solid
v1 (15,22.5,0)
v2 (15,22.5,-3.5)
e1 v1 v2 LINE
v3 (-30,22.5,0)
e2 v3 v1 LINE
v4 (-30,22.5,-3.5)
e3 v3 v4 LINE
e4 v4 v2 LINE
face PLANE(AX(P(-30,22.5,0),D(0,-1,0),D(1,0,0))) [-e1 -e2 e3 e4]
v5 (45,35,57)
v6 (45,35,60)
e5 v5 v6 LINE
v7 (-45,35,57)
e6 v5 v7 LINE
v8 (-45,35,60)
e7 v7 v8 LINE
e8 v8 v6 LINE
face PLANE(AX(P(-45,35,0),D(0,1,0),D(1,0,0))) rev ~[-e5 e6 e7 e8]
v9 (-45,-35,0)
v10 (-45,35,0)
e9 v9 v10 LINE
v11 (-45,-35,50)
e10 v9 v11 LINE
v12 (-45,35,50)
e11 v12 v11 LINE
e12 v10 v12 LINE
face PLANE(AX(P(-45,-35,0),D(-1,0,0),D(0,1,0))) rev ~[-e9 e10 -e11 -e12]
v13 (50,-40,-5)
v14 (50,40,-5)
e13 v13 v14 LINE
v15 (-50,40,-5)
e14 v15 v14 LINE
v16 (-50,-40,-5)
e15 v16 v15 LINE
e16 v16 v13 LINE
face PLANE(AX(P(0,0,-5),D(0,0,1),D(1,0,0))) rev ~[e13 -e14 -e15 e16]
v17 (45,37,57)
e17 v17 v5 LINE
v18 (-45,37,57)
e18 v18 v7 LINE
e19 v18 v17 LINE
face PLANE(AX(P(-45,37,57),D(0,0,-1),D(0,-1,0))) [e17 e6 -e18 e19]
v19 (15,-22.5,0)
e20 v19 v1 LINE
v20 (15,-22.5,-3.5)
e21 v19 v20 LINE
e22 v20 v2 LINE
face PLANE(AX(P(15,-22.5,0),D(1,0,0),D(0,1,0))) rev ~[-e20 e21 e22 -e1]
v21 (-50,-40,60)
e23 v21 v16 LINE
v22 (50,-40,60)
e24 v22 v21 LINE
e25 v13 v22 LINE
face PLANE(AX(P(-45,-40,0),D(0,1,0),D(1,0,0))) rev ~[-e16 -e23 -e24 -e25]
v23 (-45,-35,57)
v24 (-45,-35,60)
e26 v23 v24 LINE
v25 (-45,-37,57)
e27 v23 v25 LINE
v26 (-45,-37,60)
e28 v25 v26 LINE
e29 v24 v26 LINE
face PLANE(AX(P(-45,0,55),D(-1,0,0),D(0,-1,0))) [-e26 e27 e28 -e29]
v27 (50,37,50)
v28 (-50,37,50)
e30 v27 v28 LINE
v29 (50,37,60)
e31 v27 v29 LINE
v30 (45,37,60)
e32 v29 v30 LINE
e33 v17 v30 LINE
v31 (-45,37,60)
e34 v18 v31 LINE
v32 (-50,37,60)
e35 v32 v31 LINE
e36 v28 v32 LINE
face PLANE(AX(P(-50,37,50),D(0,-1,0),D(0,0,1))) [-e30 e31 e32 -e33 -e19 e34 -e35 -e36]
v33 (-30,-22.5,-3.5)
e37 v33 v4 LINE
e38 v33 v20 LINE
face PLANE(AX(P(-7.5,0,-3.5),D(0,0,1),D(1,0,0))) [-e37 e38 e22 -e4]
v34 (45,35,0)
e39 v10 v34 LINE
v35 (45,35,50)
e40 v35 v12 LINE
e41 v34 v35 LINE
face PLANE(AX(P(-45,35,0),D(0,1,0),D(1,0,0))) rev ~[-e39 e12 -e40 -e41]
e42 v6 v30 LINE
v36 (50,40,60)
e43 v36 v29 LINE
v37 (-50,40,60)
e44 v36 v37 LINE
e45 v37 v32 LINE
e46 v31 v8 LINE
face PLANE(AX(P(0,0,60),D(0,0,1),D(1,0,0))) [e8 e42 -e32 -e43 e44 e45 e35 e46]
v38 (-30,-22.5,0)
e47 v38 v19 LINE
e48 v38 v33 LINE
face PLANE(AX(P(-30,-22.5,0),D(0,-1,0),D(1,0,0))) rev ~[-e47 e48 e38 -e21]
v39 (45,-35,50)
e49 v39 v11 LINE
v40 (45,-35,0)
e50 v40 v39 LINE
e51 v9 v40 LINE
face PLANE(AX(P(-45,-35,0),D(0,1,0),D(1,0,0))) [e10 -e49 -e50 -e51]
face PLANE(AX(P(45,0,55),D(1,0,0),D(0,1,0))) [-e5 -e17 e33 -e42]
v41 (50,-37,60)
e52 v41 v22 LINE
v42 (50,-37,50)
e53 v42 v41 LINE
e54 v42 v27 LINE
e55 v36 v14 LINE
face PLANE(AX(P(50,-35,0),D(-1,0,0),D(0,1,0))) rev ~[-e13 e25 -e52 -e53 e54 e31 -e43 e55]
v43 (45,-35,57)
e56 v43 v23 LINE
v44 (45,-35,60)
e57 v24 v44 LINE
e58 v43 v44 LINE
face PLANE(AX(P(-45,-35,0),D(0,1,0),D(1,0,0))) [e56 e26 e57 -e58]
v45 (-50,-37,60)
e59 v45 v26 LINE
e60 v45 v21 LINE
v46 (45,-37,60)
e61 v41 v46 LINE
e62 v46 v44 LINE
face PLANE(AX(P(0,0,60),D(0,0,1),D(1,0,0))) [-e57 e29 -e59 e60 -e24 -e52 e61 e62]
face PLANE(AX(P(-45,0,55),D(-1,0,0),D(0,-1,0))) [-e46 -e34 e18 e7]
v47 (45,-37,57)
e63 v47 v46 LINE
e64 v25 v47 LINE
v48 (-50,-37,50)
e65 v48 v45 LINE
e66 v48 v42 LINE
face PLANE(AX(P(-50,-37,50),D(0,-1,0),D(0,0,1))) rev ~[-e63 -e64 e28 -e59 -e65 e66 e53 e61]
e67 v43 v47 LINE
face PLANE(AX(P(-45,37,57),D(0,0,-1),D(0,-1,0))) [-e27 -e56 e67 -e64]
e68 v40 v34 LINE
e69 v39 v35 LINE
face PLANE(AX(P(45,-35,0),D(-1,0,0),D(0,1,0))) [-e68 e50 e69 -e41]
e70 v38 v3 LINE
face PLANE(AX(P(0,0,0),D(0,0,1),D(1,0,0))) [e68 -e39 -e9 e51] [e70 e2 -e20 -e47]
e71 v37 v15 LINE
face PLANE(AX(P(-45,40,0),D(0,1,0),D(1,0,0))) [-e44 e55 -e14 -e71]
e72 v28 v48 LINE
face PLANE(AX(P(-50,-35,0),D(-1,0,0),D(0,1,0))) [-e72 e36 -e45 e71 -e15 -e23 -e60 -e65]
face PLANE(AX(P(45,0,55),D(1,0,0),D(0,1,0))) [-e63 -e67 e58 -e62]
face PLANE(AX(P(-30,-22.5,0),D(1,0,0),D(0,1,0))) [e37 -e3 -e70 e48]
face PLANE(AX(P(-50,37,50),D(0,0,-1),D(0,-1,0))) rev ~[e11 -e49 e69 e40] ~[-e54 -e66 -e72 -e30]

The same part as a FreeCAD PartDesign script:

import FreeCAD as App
import Part
import Sketcher

V = App.Vector


def faces_at(feature, points):
    """Names of the faces that lie closest to the given points."""
    faces = feature.Shape.Faces
    near = lambda p: min(range(len(faces)), key=lambda i: faces[i].distToShape(Part.Vertex(*p))[0])
    return sorted({f"Face{near(p) + 1}" for p in points})


def add_polygon(sketch, points):
    """Adds a closed chain of lines whose ends are joined by coincident constraints."""
    first, n = sketch.GeometryCount, len(points)
    for a, b in zip(points, points[1:] + points[:1]):
        sketch.addGeometry(Part.LineSegment(App.Vector(*a, 0), App.Vector(*b, 0)), False)
    for i in range(n):
        sketch.addConstraint(Sketcher.Constraint("Coincident", first + i, 2, first + (i + 1) % n, 1))

doc = App.newDocument("Part")
params = doc.addObject("Spreadsheet::Sheet", "Params")
for row, (alias, value) in enumerate([
    ("sketch1_width", "90 mm"),
    ("sketch1_height", "70 mm"),
    ("pad1_length", "60 mm"),
    ("thickness_wall", "5 mm"),
    ("sketch2_width", "45 mm"),
    ("pocket1_length", "3.5 mm"),
    ("sketch3_width", "45 mm"),
    ("pocket2_length", "3.5 mm"),
    ("sketch4_width", "74 mm"),
    ("sketch4_height", "10 mm"),
    ("pocket3_length", "5 mm"),
    ("sketch5_width", "74 mm"),
    ("sketch5_height", "10 mm"),
    ("pocket4_length", "5 mm"),
    ("sketch6_width", "74 mm"),
    ("sketch6_height", "7 mm"),
    ("pocket5_length", "90 mm"),
], start=1):
    params.set(f"A{row}", alias)
    params.set(f"B{row}", "=" + value)
    params.setAlias(f"B{row}", alias)

body = doc.addObject("PartDesign::Body", "Body")

sketch1 = doc.addObject("Sketcher::SketchObject", "Sketch")
body.addObject(sketch1)
sketch1.AttachmentSupport = (doc.XY_Plane, [""])
sketch1.MapMode = "FlatFace"
add_polygon(sketch1, [(-45, 35), (-45, -35), (45, -35), (45, 35)])
sketch1.addConstraint([
    Sketcher.Constraint("Vertical", 0),
    Sketcher.Constraint("Horizontal", 1),
    Sketcher.Constraint("Vertical", 2),
    Sketcher.Constraint("Horizontal", 3),
    Sketcher.Constraint("Symmetric", 0, 2, 2, 2, -1, 1),
    Sketcher.Constraint("DistanceX", 1, 1, 1, 2, 90.0),
    Sketcher.Constraint("DistanceY", 0, 2, 0, 1, 70.0),
])
sketch1.setExpression("Constraints[9]", "Params.sketch1_width")
sketch1.setExpression("Constraints[10]", "Params.sketch1_height")
pad1 = doc.addObject("PartDesign::Pad", "Pad")
body.addObject(pad1)
pad1.Profile = sketch1
pad1.setExpression("Length", "Params.pad1_length")
doc.recompute()

thickness = doc.addObject("PartDesign::Thickness", "Thickness")
body.addObject(thickness)
thickness.Base = (pad1, faces_at(pad1, [(0, 0, 60)]))
thickness.setExpression("Value", "Params.thickness_wall")
thickness.Reversed = False
thickness.Join = "Intersection"

sketch2 = doc.addObject("Sketcher::SketchObject", "Sketch001")
body.addObject(sketch2)
sketch2.AttachmentSupport = (doc.XY_Plane, [""])
sketch2.MapMode = "FlatFace"
add_polygon(sketch2, [(-30, 22), (-30, -22), (15, -22), (15, 22)])
sketch2.addConstraint([
    Sketcher.Constraint("Vertical", 0),
    Sketcher.Constraint("Horizontal", 1),
    Sketcher.Constraint("Vertical", 2),
    Sketcher.Constraint("Horizontal", 3),
    Sketcher.Constraint("Equal", 3, 0),
    Sketcher.Constraint("DistanceX", 1, 1, 1, 2, 45.0),
    Sketcher.Constraint("DistanceX", 0, 2, -1, 1, 30.0),
    Sketcher.Constraint("DistanceY", 0, 2, -1, 1, 22.5),
])
sketch2.setExpression("Constraints[9]", "Params.sketch2_width")
pocket1 = doc.addObject("PartDesign::Pocket", "Pocket")
body.addObject(pocket1)
pocket1.Profile = sketch2
pocket1.setExpression("Length", "Params.pocket1_length")

sketch3 = doc.addObject("Sketcher::SketchObject", "Sketch002")
body.addObject(sketch3)
sketch3.AttachmentSupport = (doc.XY_Plane, [""])
sketch3.MapMode = "FlatFace"
add_polygon(sketch3, [(-30, 22), (-30, -22), (15, -22), (15, 22)])
sketch3.addConstraint([
    Sketcher.Constraint("Vertical", 0),
    Sketcher.Constraint("Horizontal", 1),
    Sketcher.Constraint("Vertical", 2),
    Sketcher.Constraint("Horizontal", 3),
    Sketcher.Constraint("Equal", 3, 0),
    Sketcher.Constraint("DistanceX", 1, 1, 1, 2, 45.0),
    Sketcher.Constraint("DistanceX", 0, 2, -1, 1, 30.0),
    Sketcher.Constraint("DistanceY", 0, 2, -1, 1, 22.5),
])
sketch3.setExpression("Constraints[9]", "Params.sketch3_width")
pocket2 = doc.addObject("PartDesign::Pocket", "Pocket001")
body.addObject(pocket2)
pocket2.Profile = sketch3
pocket2.setExpression("Length", "Params.pocket2_length")

sketch4 = doc.addObject("Sketcher::SketchObject", "Sketch003")
body.addObject(sketch4)
sketch4.AttachmentSupport = (doc.YZ_Plane, [""])
sketch4.MapMode = "FlatFace"
sketch4.AttachmentOffset = App.Placement(V(0, 0, -50), App.Rotation())
add_polygon(sketch4, [(37, 60), (37, 50), (-37, 50), (-37, 60)])
sketch4.addConstraint([
    Sketcher.Constraint("Vertical", 0),
    Sketcher.Constraint("Horizontal", 1),
    Sketcher.Constraint("Vertical", 2),
    Sketcher.Constraint("Horizontal", 3),
    Sketcher.Constraint("DistanceX", 1, 2, 1, 1, 74.0),
    Sketcher.Constraint("DistanceY", 0, 2, 0, 1, 10.0),
    Sketcher.Constraint("DistanceX", -1, 1, 0, 2, 37.0),
    Sketcher.Constraint("DistanceY", -1, 1, 0, 2, 50.0),
])
sketch4.setExpression("Constraints[8]", "Params.sketch4_width")
sketch4.setExpression("Constraints[9]", "Params.sketch4_height")
pocket3 = doc.addObject("PartDesign::Pocket", "Pocket002")
body.addObject(pocket3)
pocket3.Profile = sketch4
pocket3.setExpression("Length", "Params.pocket3_length")
pocket3.Reversed = True

sketch5 = doc.addObject("Sketcher::SketchObject", "Sketch004")
body.addObject(sketch5)
sketch5.AttachmentSupport = (doc.YZ_Plane, [""])
sketch5.MapMode = "FlatFace"
sketch5.AttachmentOffset = App.Placement(V(0, 0, 50), App.Rotation())
add_polygon(sketch5, [(-37, 60), (-37, 50), (37, 50), (37, 60)])
sketch5.addConstraint([
    Sketcher.Constraint("Vertical", 0),
    Sketcher.Constraint("Horizontal", 1),
    Sketcher.Constraint("Vertical", 2),
    Sketcher.Constraint("Horizontal", 3),
    Sketcher.Constraint("DistanceX", 1, 1, 1, 2, 74.0),
    Sketcher.Constraint("DistanceY", 0, 2, 0, 1, 10.0),
    Sketcher.Constraint("DistanceX", 0, 2, -1, 1, 37.0),
    Sketcher.Constraint("DistanceY", -1, 1, 0, 2, 50.0),
])
sketch5.setExpression("Constraints[8]", "Params.sketch5_width")
sketch5.setExpression("Constraints[9]", "Params.sketch5_height")
pocket4 = doc.addObject("PartDesign::Pocket", "Pocket003")
body.addObject(pocket4)
pocket4.Profile = sketch5
pocket4.setExpression("Length", "Params.pocket4_length")

sketch6 = doc.addObject("Sketcher::SketchObject", "Sketch005")
body.addObject(sketch6)
sketch6.AttachmentSupport = (doc.YZ_Plane, [""])
sketch6.MapMode = "FlatFace"
sketch6.AttachmentOffset = App.Placement(V(0, 0, -45), App.Rotation())
add_polygon(sketch6, [(37, 57), (37, 50), (-37, 50), (-37, 57)])
sketch6.addConstraint([
    Sketcher.Constraint("Vertical", 0),
    Sketcher.Constraint("Horizontal", 1),
    Sketcher.Constraint("Vertical", 2),
    Sketcher.Constraint("Horizontal", 3),
    Sketcher.Constraint("DistanceX", 1, 2, 1, 1, 74.0),
    Sketcher.Constraint("DistanceY", 0, 2, 0, 1, 7.0),
    Sketcher.Constraint("DistanceX", -1, 1, 0, 2, 37.0),
    Sketcher.Constraint("DistanceY", -1, 1, 0, 2, 50.0),
])
sketch6.setExpression("Constraints[8]", "Params.sketch6_width")
sketch6.setExpression("Constraints[9]", "Params.sketch6_height")
pocket5 = doc.addObject("PartDesign::Pocket", "Pocket004")
body.addObject(pocket5)
pocket5.Profile = sketch6
pocket5.setExpression("Length", "Params.pocket5_length")
pocket5.Reversed = True

doc.recompute()
